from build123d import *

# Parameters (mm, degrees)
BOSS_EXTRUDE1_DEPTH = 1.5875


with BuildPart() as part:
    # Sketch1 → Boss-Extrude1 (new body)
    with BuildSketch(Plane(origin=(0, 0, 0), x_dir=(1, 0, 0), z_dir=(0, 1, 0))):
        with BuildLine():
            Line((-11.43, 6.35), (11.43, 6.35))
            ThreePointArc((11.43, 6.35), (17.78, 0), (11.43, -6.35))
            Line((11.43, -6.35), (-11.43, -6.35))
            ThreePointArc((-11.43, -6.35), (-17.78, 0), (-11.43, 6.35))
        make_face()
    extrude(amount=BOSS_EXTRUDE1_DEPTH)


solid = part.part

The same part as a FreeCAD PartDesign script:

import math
import FreeCAD as App
import Part
import Sketcher
Q = App.Units.Quantity

doc = App.newDocument("Part")
body = doc.addObject("PartDesign::Body", "Body")

sketch1 = doc.addObject("Sketcher::SketchObject", "Sketch")
body.addObject(sketch1)
sketch1.AttachmentSupport = (doc.XZ_Plane, [""])
sketch1.MapMode = "FlatFace"
sketch1.addGeometry(Part.LineSegment(App.Vector(11, -6, 0), App.Vector(-11, -6, 0)), False)
sketch1.addGeometry(Part.ArcOfCircle(Part.Circle(App.Vector(-11, 0, 0), App.Vector(0, 0, 1), 6), math.radians(90), math.radians(270)), False)
sketch1.addGeometry(Part.LineSegment(App.Vector(-11, 6, 0), App.Vector(11, 6, 0)), False)
sketch1.addGeometry(Part.ArcOfCircle(Part.Circle(App.Vector(11, 0, 0), App.Vector(0, 0, 1), 6), math.radians(-90), math.radians(90)), False)
sketch1.addConstraint(Sketcher.Constraint("Tangent", 0, 2, 1, 2))
sketch1.addConstraint(Sketcher.Constraint("Tangent", 1, 1, 2, 1))
sketch1.addConstraint(Sketcher.Constraint("Tangent", 2, 2, 3, 2))
sketch1.addConstraint(Sketcher.Constraint("Tangent", 3, 1, 0, 1))
sketch1.addConstraint(Sketcher.Constraint("Horizontal", 0))
sketch1.addConstraint(Sketcher.Constraint("Horizontal", 2))
sketch1.addConstraint(Sketcher.Constraint("Symmetric", 1, 3, 3, 3, -1, 1))
sketch1.addConstraint(Sketcher.Constraint("Radius", 1, Q("0.25 in")))
sketch1.addConstraint(Sketcher.Constraint("DistanceX", 0, 2, 0, 1, Q("0.9 in")))
pad1 = doc.addObject("PartDesign::Pad", "Pad")
body.addObject(pad1)
pad1.Profile = sketch1
pad1.Length = Q("0.0625 in")
pad1.Reversed = True

doc.recompute()
